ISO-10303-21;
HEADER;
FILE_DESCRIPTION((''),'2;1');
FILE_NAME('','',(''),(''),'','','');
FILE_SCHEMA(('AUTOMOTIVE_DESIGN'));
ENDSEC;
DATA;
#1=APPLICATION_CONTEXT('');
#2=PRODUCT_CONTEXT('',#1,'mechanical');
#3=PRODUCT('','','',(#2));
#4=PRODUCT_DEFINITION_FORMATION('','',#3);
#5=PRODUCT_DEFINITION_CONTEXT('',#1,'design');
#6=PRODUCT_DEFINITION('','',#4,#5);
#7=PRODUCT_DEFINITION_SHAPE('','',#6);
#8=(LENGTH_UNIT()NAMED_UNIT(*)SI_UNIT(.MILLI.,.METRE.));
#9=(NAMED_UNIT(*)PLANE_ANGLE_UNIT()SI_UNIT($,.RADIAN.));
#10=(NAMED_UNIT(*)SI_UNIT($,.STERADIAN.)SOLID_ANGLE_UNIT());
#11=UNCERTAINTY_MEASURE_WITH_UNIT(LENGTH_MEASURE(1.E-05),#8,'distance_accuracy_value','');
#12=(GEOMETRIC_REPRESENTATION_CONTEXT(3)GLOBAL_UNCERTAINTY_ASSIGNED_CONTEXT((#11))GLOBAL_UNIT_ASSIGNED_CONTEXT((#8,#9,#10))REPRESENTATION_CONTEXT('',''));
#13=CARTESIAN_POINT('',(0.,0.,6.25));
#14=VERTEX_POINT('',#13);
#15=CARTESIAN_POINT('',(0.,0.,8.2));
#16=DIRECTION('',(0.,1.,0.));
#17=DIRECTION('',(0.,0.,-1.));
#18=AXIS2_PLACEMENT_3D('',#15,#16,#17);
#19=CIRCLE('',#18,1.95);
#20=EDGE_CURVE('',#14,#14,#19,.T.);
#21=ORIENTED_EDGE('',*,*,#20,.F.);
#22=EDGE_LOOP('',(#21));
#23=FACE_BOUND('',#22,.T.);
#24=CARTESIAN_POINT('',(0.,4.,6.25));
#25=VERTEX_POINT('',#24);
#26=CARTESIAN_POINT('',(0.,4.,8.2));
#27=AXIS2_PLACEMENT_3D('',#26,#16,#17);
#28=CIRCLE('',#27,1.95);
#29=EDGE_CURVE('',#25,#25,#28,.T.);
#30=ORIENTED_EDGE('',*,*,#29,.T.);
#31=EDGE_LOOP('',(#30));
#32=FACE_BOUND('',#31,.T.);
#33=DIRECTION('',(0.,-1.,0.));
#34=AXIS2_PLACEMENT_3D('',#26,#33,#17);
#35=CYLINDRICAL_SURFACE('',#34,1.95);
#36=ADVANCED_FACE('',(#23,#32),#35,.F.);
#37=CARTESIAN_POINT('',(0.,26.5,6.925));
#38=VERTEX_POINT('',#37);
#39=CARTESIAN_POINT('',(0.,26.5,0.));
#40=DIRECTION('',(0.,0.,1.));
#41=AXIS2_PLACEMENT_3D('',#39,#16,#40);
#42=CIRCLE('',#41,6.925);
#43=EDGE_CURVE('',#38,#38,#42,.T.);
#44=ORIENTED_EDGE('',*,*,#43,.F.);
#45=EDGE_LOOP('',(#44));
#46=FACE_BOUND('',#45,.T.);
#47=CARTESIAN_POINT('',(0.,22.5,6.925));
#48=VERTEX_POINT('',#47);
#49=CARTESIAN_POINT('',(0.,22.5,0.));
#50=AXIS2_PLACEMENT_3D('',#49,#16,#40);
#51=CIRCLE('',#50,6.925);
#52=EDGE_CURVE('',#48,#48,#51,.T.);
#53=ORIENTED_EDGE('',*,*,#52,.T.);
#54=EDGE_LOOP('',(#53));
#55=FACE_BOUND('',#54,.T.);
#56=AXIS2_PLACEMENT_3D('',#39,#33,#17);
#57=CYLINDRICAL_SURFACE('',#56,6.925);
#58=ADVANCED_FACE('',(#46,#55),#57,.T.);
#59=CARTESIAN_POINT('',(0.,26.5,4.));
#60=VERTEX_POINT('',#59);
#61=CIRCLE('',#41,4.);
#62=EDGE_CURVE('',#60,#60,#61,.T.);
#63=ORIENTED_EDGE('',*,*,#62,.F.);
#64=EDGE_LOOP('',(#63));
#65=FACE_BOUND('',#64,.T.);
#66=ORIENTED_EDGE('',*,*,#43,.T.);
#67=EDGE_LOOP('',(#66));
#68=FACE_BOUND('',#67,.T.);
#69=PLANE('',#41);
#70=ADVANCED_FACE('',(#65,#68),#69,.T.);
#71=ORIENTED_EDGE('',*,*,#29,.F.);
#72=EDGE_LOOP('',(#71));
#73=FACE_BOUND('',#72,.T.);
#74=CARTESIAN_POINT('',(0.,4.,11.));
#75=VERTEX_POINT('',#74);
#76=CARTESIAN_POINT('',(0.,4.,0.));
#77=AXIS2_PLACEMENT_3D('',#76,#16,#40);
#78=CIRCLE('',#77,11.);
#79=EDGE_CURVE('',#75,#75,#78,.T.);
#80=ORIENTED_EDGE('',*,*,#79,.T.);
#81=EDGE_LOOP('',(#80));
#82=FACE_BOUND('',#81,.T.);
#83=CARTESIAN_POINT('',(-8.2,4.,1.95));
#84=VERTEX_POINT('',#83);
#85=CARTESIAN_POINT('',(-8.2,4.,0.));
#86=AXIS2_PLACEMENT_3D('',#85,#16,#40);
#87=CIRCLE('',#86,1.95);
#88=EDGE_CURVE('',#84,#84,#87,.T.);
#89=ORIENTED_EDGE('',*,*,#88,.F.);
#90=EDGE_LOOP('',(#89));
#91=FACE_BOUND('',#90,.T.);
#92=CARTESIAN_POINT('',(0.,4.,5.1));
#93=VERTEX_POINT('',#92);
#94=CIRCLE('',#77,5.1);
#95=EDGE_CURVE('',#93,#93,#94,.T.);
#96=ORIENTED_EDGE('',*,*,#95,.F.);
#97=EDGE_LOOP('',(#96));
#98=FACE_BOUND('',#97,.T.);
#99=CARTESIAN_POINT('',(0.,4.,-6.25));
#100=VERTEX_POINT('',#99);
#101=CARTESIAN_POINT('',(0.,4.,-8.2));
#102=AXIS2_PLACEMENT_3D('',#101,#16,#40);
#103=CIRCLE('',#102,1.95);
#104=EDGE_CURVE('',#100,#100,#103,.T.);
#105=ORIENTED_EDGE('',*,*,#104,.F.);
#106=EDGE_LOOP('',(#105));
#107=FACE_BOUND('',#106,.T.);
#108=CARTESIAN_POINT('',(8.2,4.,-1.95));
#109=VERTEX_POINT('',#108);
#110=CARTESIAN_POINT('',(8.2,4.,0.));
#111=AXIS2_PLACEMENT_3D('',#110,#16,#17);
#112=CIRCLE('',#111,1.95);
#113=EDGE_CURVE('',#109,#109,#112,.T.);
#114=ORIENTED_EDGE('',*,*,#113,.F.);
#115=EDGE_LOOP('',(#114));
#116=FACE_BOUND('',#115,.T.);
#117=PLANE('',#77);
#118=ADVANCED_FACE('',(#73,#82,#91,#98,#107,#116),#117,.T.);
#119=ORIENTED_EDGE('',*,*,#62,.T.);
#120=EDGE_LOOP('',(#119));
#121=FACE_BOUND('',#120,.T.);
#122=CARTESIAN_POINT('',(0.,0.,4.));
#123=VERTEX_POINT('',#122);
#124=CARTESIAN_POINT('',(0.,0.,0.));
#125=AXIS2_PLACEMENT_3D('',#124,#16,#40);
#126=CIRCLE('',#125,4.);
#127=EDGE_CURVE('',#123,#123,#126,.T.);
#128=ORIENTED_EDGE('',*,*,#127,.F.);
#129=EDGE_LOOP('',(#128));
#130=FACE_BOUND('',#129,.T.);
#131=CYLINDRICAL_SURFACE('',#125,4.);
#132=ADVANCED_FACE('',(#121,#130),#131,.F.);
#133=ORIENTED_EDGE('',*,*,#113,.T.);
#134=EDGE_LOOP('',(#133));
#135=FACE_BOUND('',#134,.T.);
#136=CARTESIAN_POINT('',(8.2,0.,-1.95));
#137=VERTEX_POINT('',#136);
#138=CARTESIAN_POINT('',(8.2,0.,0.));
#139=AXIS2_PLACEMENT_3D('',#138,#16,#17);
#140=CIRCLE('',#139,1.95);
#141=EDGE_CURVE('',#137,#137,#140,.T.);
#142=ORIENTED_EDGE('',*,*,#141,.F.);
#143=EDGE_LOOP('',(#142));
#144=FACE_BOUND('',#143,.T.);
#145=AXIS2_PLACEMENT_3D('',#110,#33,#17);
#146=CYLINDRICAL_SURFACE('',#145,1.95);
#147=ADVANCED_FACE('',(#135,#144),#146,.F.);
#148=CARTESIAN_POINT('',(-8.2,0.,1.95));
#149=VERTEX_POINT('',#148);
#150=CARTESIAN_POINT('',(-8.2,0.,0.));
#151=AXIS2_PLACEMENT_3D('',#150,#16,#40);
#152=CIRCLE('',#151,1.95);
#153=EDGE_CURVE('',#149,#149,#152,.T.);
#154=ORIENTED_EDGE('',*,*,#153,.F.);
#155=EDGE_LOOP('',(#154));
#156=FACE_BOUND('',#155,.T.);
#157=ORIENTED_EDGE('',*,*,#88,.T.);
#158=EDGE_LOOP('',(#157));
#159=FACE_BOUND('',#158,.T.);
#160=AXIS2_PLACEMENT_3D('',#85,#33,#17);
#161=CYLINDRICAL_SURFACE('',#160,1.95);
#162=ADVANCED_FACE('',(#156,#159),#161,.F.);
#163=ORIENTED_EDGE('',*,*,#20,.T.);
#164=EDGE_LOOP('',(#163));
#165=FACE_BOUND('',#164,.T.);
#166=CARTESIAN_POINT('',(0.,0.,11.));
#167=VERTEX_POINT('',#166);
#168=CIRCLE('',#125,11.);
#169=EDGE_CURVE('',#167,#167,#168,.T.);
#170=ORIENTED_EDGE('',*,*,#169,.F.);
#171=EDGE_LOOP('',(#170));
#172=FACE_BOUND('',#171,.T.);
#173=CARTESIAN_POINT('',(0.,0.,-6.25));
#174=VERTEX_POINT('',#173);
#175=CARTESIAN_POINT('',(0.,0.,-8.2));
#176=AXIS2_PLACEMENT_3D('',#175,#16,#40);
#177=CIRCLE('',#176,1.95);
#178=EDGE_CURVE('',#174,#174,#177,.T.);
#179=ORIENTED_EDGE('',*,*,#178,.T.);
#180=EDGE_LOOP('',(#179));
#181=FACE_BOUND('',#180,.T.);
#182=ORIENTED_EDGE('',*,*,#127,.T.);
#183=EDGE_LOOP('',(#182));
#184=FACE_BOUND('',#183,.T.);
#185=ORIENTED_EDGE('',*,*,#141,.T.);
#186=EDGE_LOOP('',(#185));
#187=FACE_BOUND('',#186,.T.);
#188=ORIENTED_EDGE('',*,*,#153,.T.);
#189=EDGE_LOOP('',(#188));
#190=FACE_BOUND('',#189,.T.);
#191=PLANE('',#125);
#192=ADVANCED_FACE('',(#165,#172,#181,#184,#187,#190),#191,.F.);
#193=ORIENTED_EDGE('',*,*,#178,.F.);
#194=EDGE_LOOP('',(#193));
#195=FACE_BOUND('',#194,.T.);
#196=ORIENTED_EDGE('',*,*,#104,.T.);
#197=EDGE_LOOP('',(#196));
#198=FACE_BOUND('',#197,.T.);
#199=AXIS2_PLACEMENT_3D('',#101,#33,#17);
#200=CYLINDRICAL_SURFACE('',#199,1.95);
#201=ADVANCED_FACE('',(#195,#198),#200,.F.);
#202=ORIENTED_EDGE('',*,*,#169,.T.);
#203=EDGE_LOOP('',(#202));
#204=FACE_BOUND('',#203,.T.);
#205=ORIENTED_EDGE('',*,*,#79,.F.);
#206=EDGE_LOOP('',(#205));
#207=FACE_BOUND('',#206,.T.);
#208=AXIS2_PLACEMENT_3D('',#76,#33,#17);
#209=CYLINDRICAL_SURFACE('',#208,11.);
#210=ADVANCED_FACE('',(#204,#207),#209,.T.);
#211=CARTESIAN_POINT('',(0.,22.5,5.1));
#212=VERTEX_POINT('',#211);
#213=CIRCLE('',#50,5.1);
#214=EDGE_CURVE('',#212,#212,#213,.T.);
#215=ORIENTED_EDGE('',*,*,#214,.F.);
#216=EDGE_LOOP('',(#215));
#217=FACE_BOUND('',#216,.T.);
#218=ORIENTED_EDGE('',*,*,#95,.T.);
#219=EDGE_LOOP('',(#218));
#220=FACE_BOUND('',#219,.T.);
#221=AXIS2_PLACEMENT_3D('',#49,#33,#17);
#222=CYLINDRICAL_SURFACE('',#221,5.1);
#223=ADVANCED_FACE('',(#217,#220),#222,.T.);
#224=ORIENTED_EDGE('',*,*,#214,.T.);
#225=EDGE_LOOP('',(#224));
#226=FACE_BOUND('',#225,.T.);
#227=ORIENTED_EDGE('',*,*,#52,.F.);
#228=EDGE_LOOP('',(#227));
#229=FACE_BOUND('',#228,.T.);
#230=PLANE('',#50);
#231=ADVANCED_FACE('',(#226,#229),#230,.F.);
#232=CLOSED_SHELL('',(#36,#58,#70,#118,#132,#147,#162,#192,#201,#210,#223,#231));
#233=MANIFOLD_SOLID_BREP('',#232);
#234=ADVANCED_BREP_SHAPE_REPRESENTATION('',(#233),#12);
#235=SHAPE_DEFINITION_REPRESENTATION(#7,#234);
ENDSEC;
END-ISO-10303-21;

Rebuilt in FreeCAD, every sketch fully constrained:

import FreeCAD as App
import Part
import Sketcher

V = App.Vector
Q = App.Units.Quantity

doc = App.newDocument("Part")
params = doc.addObject("Spreadsheet::Sheet", "Params")
for row, (alias, value) in enumerate([
    ("sketch1_diameter", "22 mm"),
    ("sketch1_diameter2", "3.9 mm"),
    ("pad1_length", "4 mm"),
    ("sketch2_diameter", "10.2 mm"),
    ("pad2_length", "18.5 mm"),
    ("sketch3_diameter", "13.85 mm"),
    ("pad3_length", "4 mm"),
    ("sketch4_diameter", "8 mm"),
], start=1):
    params.set(f"A{row}", alias)
    params.set(f"B{row}", "=" + value)
    params.setAlias(f"B{row}", alias)

body = doc.addObject("PartDesign::Body", "Body")

sketch1 = body.newObject("Sketcher::SketchObject", "Sketch")
sketch1.AttachmentSupport = (doc.getObject("XZ_Plane"), [""])
sketch1.MapMode = "FlatFace"
sketch1.addGeometry([
    Part.Circle(V(0, 0, 0), V(0, 0, 1), 11),
    Part.Circle(V(0, -8.2, 0), V(0, 0, 1), 1.9),
    Part.Circle(V(-8.2, 0, 0), V(0, 0, 1), 1.9),
    Part.Circle(V(8.2, 0, 0), V(0, 0, 1), 1.9),
    Part.Circle(V(0, 8.2, 0), V(0, 0, 1), 1.9),
], False)
sketch1.addConstraint([
    Sketcher.Constraint("Coincident", 0, 3, -1, 1),
    Sketcher.Constraint("Equal", 1, 2),
    Sketcher.Constraint("Equal", 2, 3),
    Sketcher.Constraint("Equal", 3, 4),
    Sketcher.Constraint("Symmetric", 2, 3, 3, 3, -1, 1),
    Sketcher.Constraint("Symmetric", 1, 3, 4, 3, -1, 1),
    Sketcher.Constraint("PointOnObject", 1, 3, -2),
    Sketcher.Constraint("PointOnObject", 2, 3, -1),
    Sketcher.Constraint("Diameter", 0, Q("22 mm")),
    Sketcher.Constraint("Diameter", 1, Q("3.9 mm")),
    Sketcher.Constraint("DistanceY", 1, 3, -1, 1, Q("8.2 mm")),
    Sketcher.Constraint("DistanceX", 2, 3, -1, 1, Q("8.2 mm")),
])
sketch1.setExpression("Constraints[8]", "Params.sketch1_diameter")
sketch1.setExpression("Constraints[9]", "Params.sketch1_diameter2")
pad1 = body.newObject("PartDesign::Pad", "Pad")
pad1.Profile = sketch1
pad1.setExpression("Length", "Params.pad1_length")
pad1.Reversed = True

sketch2 = body.newObject("Sketcher::SketchObject", "Sketch001")
sketch2.AttachmentSupport = (doc.getObject("XZ_Plane"), [""])
sketch2.MapMode = "FlatFace"
sketch2.AttachmentOffset = App.Placement(V(0, 0, -4), App.Rotation())
sketch2.addGeometry(Part.Circle(V(0, 0, 0), V(0, 0, 1), 5), False)
sketch2.addConstraint([
    Sketcher.Constraint("Coincident", 0, 3, -1, 1),
    Sketcher.Constraint("Diameter", 0, Q("10.2 mm")),
])
sketch2.setExpression("Constraints[1]", "Params.sketch2_diameter")
pad2 = body.newObject("PartDesign::Pad", "Pad001")
pad2.Profile = sketch2
pad2.setExpression("Length", "Params.pad2_length")
pad2.Reversed = True

sketch3 = body.newObject("Sketcher::SketchObject", "Sketch002")
sketch3.AttachmentSupport = (doc.getObject("XZ_Plane"), [""])
sketch3.MapMode = "FlatFace"
sketch3.AttachmentOffset = App.Placement(V(0, 0, -22.5), App.Rotation())
sketch3.addGeometry(Part.Circle(V(0, 0, 0), V(0, 0, 1), 7), False)
sketch3.addConstraint([
    Sketcher.Constraint("Coincident", 0, 3, -1, 1),
    Sketcher.Constraint("Diameter", 0, Q("13.85 mm")),
])
sketch3.setExpression("Constraints[1]", "Params.sketch3_diameter")
pad3 = body.newObject("PartDesign::Pad", "Pad002")
pad3.Profile = sketch3
pad3.setExpression("Length", "Params.pad3_length")
pad3.Reversed = True

sketch4 = body.newObject("Sketcher::SketchObject", "Sketch003")
sketch4.AttachmentSupport = (doc.getObject("XZ_Plane"), [""])
sketch4.MapMode = "FlatFace"
sketch4.AttachmentOffset = App.Placement(V(0, 0, -26.5), App.Rotation())
sketch4.addGeometry(Part.Circle(V(0, 0, 0), V(0, 0, 1), 4), False)
sketch4.addConstraint([
    Sketcher.Constraint("Coincident", 0, 3, -1, 1),
    Sketcher.Constraint("Diameter", 0, Q("8 mm")),
])
sketch4.setExpression("Constraints[1]", "Params.sketch4_diameter")
pocket1 = body.newObject("PartDesign::Pocket", "Pocket")
pocket1.Profile = sketch4
pocket1.Type = "ThroughAll"
pocket1.Reversed = True

doc.recompute()
